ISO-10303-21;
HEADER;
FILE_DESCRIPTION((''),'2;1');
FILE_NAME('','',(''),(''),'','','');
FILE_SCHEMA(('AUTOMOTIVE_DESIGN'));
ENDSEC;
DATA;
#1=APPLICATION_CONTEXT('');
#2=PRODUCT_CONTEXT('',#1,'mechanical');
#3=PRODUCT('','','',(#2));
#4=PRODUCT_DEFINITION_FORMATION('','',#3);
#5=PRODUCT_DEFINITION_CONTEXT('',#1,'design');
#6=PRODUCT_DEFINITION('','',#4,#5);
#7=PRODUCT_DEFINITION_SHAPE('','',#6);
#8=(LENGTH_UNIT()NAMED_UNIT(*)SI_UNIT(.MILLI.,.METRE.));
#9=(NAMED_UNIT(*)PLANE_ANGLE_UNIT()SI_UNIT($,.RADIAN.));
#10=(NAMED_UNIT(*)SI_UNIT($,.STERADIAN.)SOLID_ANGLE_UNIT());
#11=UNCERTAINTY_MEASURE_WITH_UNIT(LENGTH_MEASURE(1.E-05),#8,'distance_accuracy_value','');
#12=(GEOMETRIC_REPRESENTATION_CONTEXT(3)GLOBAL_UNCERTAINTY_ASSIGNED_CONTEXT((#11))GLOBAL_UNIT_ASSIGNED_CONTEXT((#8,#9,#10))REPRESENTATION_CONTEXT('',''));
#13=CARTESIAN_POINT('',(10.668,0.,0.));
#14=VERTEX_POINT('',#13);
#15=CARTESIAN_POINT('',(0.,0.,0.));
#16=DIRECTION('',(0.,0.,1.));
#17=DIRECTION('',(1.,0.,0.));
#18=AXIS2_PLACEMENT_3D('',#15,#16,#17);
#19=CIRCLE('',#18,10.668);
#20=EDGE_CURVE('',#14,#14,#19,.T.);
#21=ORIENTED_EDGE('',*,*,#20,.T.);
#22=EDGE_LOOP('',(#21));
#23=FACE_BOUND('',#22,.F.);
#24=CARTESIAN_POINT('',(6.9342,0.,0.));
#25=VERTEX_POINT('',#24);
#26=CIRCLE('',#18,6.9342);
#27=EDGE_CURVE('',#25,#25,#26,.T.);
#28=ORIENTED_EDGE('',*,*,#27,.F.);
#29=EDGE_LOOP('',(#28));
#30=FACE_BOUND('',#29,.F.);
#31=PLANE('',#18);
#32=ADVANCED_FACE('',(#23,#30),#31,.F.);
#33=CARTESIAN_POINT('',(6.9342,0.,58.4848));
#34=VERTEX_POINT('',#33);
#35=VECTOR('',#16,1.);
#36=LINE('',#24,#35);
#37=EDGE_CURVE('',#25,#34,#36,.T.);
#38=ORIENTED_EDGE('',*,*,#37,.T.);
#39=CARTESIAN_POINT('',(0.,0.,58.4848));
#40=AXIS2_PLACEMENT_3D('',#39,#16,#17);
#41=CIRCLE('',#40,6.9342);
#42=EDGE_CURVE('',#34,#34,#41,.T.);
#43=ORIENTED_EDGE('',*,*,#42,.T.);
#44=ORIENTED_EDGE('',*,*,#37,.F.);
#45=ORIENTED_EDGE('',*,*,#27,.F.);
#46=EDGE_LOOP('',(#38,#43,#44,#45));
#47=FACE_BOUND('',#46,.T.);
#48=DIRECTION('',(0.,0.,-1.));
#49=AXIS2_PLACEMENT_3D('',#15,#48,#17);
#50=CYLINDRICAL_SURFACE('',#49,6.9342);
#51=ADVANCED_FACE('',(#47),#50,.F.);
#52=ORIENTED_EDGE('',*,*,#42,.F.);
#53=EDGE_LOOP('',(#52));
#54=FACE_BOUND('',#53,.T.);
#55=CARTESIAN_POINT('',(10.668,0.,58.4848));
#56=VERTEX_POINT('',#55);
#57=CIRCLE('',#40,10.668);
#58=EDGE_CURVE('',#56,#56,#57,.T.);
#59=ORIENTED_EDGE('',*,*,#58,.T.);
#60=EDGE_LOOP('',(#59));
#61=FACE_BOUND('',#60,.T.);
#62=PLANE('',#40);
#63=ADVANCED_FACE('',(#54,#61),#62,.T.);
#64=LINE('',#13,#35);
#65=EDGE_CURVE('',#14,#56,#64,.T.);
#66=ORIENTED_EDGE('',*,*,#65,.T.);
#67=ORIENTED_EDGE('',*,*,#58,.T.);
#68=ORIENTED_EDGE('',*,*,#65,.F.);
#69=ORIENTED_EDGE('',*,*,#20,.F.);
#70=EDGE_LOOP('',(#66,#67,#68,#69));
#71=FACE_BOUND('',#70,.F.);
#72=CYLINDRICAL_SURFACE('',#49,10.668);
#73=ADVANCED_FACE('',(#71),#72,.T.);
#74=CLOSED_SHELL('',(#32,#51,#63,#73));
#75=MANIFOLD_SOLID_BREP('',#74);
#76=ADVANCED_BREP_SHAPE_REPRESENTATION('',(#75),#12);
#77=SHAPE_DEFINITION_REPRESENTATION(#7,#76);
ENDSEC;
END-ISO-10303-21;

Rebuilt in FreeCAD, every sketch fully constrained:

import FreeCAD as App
import Part
import Sketcher

V = App.Vector
Q = App.Units.Quantity

doc = App.newDocument("Part")
body = doc.addObject("PartDesign::Body", "Body")

sketch1 = body.newObject("Sketcher::SketchObject", "Sketch")
sketch1.AttachmentSupport = (doc.getObject("XY_Plane"), [""])
sketch1.MapMode = "FlatFace"
sketch1.addGeometry([
    Part.Circle(V(0, 0, 0), V(0, 0, 1), 11),
    Part.Circle(V(0, 0, 0), V(0, 0, 1), 7),
], False)
sketch1.addConstraint([
    Sketcher.Constraint("Coincident", 0, 3, -1, 1),
    Sketcher.Constraint("Coincident", 1, 3, -1, 1),
    Sketcher.Constraint("Diameter", 0, Q("0.84 in")),
    Sketcher.Constraint("Diameter", 1, Q("0.546 in")),
])
pad1 = body.newObject("PartDesign::Pad", "Pad")
pad1.Profile = sketch1
pad1.Length = 58.4848

doc.recompute()
